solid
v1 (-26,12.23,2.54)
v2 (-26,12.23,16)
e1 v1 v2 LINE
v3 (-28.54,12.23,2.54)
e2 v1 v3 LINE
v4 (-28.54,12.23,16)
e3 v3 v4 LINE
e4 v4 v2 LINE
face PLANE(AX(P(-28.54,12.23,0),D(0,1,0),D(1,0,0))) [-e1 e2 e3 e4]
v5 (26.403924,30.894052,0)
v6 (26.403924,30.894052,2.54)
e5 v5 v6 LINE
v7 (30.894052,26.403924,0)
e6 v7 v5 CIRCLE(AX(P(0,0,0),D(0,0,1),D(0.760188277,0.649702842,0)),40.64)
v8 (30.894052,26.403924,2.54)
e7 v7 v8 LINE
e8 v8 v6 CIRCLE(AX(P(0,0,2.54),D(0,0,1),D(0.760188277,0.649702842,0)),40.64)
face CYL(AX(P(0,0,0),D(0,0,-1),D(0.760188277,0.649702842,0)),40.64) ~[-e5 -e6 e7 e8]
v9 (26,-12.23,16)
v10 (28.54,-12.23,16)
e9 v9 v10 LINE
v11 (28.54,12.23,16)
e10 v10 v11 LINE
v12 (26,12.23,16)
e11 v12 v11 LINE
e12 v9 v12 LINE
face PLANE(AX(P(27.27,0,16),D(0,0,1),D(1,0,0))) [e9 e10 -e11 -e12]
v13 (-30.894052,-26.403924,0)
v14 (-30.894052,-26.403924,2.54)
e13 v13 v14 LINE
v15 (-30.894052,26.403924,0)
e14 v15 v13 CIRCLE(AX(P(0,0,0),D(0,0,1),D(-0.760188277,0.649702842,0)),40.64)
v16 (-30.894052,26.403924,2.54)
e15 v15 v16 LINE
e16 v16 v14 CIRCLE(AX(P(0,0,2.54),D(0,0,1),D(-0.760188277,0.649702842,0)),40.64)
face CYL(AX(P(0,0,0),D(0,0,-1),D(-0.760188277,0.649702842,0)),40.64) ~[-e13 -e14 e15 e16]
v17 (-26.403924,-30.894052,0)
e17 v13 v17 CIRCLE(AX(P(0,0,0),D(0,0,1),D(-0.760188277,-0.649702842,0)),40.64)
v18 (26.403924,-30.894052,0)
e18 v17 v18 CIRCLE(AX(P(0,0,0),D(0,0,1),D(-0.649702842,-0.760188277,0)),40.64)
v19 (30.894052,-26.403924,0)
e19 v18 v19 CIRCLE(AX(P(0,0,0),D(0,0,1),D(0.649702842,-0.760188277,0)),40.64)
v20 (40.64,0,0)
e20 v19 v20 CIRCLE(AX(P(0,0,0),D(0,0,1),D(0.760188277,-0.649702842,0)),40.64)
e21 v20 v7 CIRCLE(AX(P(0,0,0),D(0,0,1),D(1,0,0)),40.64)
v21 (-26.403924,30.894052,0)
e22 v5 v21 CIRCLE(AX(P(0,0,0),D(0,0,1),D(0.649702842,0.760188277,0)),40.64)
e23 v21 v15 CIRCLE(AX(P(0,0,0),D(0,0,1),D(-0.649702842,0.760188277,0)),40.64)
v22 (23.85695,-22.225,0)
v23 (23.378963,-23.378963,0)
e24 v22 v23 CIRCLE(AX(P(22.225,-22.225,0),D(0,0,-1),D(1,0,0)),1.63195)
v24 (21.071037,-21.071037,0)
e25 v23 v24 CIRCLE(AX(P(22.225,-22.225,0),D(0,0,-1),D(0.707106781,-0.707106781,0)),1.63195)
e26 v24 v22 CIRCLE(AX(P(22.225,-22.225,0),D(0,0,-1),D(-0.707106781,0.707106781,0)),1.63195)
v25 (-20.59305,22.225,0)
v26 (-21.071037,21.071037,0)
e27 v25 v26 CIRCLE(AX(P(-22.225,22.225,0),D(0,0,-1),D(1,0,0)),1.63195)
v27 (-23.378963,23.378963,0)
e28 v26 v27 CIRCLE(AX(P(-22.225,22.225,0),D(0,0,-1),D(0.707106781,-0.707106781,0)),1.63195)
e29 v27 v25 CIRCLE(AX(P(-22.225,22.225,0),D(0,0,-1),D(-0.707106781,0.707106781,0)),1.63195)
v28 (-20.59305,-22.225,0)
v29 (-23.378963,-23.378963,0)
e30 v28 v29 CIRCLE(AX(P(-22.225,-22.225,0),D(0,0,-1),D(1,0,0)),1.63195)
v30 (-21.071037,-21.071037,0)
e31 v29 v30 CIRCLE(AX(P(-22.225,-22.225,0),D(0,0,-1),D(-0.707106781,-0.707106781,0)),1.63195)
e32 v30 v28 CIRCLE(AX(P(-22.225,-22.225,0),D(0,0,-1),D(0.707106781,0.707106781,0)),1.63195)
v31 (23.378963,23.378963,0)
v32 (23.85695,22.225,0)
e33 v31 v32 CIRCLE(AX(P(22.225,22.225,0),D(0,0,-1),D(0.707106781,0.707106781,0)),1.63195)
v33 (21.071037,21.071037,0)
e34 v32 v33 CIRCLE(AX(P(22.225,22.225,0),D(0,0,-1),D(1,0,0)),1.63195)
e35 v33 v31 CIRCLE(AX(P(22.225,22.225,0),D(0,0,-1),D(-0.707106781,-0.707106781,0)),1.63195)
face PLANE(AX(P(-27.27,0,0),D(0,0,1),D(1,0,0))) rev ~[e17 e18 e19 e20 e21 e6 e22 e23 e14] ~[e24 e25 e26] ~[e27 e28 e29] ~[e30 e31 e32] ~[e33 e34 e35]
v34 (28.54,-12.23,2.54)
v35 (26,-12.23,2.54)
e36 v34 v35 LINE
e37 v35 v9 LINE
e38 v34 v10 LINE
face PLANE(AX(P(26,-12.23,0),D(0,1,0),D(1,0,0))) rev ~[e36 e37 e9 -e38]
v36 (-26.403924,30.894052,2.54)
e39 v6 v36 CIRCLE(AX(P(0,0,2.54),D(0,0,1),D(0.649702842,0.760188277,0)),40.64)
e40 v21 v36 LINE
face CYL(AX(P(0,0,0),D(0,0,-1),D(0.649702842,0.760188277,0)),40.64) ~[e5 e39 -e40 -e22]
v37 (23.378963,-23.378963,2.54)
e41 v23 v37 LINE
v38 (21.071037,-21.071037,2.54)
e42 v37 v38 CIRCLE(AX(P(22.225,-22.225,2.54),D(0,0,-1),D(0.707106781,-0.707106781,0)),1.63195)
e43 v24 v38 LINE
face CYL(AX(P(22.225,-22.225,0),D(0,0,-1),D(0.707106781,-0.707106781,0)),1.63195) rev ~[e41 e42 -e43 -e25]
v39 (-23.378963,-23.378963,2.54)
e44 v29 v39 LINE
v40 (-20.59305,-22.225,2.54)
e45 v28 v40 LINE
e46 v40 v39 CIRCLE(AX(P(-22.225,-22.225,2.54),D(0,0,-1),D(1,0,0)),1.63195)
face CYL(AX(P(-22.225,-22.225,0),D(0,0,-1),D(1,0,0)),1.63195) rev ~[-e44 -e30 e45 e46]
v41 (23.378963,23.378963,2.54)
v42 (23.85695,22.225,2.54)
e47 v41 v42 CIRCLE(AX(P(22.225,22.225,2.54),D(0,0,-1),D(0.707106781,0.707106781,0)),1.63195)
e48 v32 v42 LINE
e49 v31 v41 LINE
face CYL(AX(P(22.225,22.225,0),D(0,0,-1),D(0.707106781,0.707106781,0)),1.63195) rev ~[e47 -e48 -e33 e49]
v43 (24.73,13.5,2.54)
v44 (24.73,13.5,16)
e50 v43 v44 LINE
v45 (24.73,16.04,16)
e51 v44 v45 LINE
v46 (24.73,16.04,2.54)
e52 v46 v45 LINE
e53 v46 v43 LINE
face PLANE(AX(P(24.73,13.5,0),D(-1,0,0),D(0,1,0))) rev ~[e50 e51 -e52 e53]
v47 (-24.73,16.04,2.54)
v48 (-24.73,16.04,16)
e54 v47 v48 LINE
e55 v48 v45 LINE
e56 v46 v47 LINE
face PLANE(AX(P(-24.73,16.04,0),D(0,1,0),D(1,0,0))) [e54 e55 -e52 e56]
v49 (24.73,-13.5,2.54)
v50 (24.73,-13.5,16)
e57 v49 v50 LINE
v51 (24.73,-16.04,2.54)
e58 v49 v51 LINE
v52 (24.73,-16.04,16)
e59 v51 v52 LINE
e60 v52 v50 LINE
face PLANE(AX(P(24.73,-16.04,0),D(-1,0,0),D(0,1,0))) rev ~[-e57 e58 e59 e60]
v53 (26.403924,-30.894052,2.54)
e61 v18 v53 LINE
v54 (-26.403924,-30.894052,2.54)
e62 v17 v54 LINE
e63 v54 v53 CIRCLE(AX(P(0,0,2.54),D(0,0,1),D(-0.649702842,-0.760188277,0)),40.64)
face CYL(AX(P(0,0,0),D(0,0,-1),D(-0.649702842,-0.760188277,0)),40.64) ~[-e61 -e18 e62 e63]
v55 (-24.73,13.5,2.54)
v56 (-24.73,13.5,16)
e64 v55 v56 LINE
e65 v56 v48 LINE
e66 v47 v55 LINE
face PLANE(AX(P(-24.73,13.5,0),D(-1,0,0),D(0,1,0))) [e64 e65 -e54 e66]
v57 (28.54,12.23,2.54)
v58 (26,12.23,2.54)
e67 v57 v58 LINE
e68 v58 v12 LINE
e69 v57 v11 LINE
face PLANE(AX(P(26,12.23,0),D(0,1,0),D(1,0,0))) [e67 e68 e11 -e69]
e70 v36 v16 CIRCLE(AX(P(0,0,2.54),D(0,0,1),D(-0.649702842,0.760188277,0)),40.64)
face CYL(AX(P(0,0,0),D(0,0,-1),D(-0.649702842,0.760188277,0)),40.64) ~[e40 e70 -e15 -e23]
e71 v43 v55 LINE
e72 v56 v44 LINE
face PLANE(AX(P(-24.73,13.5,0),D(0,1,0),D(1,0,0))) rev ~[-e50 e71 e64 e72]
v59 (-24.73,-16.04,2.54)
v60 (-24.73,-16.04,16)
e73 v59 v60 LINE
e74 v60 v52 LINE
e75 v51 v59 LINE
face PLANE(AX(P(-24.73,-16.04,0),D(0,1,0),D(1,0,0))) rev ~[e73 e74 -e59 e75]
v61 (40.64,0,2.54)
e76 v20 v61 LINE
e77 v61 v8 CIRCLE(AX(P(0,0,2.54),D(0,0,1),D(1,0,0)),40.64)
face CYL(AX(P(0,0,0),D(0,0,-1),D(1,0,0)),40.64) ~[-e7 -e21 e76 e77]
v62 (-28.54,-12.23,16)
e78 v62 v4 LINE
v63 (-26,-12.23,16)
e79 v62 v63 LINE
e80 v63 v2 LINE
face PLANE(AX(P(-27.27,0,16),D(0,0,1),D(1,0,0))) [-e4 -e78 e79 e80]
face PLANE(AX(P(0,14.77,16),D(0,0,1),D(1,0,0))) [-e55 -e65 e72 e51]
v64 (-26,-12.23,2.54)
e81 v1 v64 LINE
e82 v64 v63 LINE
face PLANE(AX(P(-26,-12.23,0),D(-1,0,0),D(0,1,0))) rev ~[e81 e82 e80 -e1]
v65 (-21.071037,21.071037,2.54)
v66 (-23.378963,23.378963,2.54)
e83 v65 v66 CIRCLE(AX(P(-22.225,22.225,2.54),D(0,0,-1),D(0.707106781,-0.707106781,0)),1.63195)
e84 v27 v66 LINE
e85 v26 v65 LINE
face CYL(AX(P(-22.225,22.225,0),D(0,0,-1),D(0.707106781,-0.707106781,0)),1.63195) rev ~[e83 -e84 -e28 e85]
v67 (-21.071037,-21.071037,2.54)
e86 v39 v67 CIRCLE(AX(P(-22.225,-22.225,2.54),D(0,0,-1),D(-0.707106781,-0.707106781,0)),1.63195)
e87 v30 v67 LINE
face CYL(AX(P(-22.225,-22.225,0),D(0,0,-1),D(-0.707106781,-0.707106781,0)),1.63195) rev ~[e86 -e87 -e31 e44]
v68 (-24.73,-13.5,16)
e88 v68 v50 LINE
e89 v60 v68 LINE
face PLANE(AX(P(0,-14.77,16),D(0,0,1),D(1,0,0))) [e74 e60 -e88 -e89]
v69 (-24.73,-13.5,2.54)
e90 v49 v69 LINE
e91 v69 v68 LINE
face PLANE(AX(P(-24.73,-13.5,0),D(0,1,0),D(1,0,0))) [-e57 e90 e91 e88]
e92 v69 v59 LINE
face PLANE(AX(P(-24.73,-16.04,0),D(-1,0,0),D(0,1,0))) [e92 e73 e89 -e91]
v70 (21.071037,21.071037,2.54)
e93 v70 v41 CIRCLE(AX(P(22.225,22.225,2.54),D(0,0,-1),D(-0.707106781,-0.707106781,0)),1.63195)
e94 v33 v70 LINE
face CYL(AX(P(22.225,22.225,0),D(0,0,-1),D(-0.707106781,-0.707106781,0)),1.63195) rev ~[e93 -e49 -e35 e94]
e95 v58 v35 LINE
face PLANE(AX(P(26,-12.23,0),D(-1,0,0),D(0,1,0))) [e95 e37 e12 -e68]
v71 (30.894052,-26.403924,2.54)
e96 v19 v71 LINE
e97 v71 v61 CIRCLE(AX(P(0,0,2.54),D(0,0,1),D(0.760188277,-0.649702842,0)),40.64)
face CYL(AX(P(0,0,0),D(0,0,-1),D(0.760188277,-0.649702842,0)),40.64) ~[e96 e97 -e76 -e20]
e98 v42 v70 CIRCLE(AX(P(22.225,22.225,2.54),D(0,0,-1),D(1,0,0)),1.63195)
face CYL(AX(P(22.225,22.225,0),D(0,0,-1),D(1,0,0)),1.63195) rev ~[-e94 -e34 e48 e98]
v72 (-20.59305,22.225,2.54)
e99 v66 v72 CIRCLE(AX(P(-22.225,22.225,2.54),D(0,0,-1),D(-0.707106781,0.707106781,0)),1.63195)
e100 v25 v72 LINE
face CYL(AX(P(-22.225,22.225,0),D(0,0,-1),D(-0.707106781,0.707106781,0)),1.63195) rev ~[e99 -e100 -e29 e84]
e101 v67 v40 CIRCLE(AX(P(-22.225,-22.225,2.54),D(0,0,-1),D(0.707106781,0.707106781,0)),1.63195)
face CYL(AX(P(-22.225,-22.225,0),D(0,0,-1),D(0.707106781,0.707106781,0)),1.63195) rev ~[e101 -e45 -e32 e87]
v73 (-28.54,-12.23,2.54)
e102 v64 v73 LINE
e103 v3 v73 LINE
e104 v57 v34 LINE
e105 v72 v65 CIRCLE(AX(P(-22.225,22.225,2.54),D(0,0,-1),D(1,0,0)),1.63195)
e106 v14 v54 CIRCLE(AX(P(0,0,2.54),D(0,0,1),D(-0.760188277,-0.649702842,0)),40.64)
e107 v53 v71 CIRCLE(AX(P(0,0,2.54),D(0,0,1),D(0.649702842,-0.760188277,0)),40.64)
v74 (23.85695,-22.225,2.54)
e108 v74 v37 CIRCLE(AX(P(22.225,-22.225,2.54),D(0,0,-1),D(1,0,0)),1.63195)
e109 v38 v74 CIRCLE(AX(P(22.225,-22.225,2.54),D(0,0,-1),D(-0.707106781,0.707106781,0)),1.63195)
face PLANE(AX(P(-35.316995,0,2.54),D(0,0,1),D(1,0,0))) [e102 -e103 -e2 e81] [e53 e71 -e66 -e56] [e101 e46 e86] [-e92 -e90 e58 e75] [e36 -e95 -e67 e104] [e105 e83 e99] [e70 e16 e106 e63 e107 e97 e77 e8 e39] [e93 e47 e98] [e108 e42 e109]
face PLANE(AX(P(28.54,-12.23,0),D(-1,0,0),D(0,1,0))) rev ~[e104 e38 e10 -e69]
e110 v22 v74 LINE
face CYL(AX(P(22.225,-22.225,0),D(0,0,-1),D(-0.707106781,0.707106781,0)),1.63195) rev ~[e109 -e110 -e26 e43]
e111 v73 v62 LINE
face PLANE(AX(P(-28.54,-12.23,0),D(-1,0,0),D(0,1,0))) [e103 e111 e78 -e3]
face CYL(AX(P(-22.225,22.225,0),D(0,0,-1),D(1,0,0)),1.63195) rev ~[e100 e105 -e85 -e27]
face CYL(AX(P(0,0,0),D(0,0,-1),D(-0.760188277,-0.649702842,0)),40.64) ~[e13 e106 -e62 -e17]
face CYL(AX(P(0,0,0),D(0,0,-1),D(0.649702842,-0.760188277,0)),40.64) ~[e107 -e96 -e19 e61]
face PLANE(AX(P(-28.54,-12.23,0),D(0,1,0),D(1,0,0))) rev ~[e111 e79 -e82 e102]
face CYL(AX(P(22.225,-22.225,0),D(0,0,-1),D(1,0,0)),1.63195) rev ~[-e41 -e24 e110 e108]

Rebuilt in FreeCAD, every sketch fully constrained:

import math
import FreeCAD as App
import Part
import Sketcher
from FreeCAD import Vector
Q = App.Units.Quantity

doc = App.newDocument("Part")
body = doc.addObject("PartDesign::Body", "Body")

# Sketch on XY plane
sketch1 = body.newObject("Sketcher::SketchObject", "Sketch")
sketch1.AttachmentSupport = (doc.getObject("XY_Plane"), [""])
sketch1.MapMode = "FlatFace"
sketch1.addGeometry([
    Part.ArcOfCircle(Part.Circle(Vector(0, 0, 0), Vector(0, 0, 1), 40.6), math.radians(-49.48), math.radians(-40.52)),  # 0
    Part.ArcOfCircle(Part.Circle(Vector(0, 0, 0), Vector(0, 0, 1), 40.6), math.radians(-41), math.radians(0)),  # 1
    Part.ArcOfCircle(Part.Circle(Vector(0, 0, 0), Vector(0, 0, 1), 40.6), math.radians(0), math.radians(41)),  # 2
    Part.ArcOfCircle(Part.Circle(Vector(0, 0, 0), Vector(0, 0, 1), 40.6), math.radians(40.52), math.radians(49.48)),  # 3
    Part.ArcOfCircle(Part.Circle(Vector(0, 0, 0), Vector(0, 0, 1), 40.6), math.radians(49), math.radians(131)),  # 4
    Part.ArcOfCircle(Part.Circle(Vector(0, 0, 0), Vector(0, 0, 1), 40.6), math.radians(130.52), math.radians(139.48)),  # 5
    Part.ArcOfCircle(Part.Circle(Vector(0, 0, 0), Vector(0, 0, 1), 40.6), math.radians(139), math.radians(221)),  # 6
    Part.ArcOfCircle(Part.Circle(Vector(0, 0, 0), Vector(0, 0, 1), 40.6), math.radians(-139.48), math.radians(-130.52)),  # 7
    Part.ArcOfCircle(Part.Circle(Vector(0, 0, 0), Vector(0, 0, 1), 40.6), math.radians(-131), math.radians(-49)),  # 8
    Part.ArcOfCircle(Part.Circle(Vector(22.2, -22.2, 0), Vector(0, 0, 1), 1.6), math.radians(135), math.radians(315)),  # 9
    Part.ArcOfCircle(Part.Circle(Vector(22.2, -22.2, 0), Vector(0, 0, 1), 1.6), math.radians(0), math.radians(135)),  # 10
    Part.ArcOfCircle(Part.Circle(Vector(22.2, -22.2, 0), Vector(0, 0, 1), 1.6), math.radians(-45), math.radians(0)),  # 11
    Part.ArcOfCircle(Part.Circle(Vector(-22.2, 22.2, 0), Vector(0, 0, 1), 1.6), math.radians(135), math.radians(315)),  # 12
    Part.ArcOfCircle(Part.Circle(Vector(-22.2, 22.2, 0), Vector(0, 0, 1), 1.6), math.radians(0), math.radians(135)),  # 13
    Part.ArcOfCircle(Part.Circle(Vector(-22.2, 22.2, 0), Vector(0, 0, 1), 1.6), math.radians(-45), math.radians(0)),  # 14
    Part.ArcOfCircle(Part.Circle(Vector(22.2, 22.2, 0), Vector(0, 0, 1), 1.6), math.radians(45), math.radians(225)),  # 15
    Part.ArcOfCircle(Part.Circle(Vector(22.2, 22.2, 0), Vector(0, 0, 1), 1.6), math.radians(0), math.radians(45)),  # 16
    Part.ArcOfCircle(Part.Circle(Vector(22.2, 22.2, 0), Vector(0, 0, 1), 1.6), math.radians(-135), math.radians(0)),  # 17
    Part.ArcOfCircle(Part.Circle(Vector(-22.2, -22.2, 0), Vector(0, 0, 1), 1.6), math.radians(0), math.radians(45)),  # 18
    Part.ArcOfCircle(Part.Circle(Vector(-22.2, -22.2, 0), Vector(0, 0, 1), 1.6), math.radians(-135), math.radians(0)),  # 19
    Part.ArcOfCircle(Part.Circle(Vector(-22.2, -22.2, 0), Vector(0, 0, 1), 1.6), math.radians(45), math.radians(225)),  # 20
], False)
sketch1.addConstraint([
    Sketcher.Constraint("Tangent", 0, 2, 1, 1),
    Sketcher.Constraint("Tangent", 1, 2, 2, 1),
    Sketcher.Constraint("Tangent", 2, 2, 3, 1),
    Sketcher.Constraint("Tangent", 3, 2, 4, 1),
    Sketcher.Constraint("Tangent", 4, 2, 5, 1),
    Sketcher.Constraint("Tangent", 5, 2, 6, 1),
    Sketcher.Constraint("Tangent", 6, 2, 7, 1),
    Sketcher.Constraint("Tangent", 7, 2, 8, 1),
    Sketcher.Constraint("Tangent", 8, 2, 0, 1),
    Sketcher.Constraint("Tangent", 9, 1, 10, 2),
    Sketcher.Constraint("Tangent", 10, 1, 11, 2),
    Sketcher.Constraint("Tangent", 11, 1, 9, 2),
    Sketcher.Constraint("Tangent", 12, 1, 13, 2),
    Sketcher.Constraint("Tangent", 13, 1, 14, 2),
    Sketcher.Constraint("Tangent", 14, 1, 12, 2),
    Sketcher.Constraint("Tangent", 15, 1, 16, 2),
    Sketcher.Constraint("Tangent", 16, 1, 17, 2),
    Sketcher.Constraint("Tangent", 17, 1, 15, 2),
    Sketcher.Constraint("Tangent", 18, 1, 19, 2),
    Sketcher.Constraint("Tangent", 19, 1, 20, 2),
    Sketcher.Constraint("Tangent", 20, 1, 18, 2),
    Sketcher.Constraint("Coincident", 0, 3, -1, 1),
    Sketcher.Constraint("Coincident", 2, 3, -1, 1),
    Sketcher.Constraint("Coincident", 4, 3, -1, 1),
    Sketcher.Constraint("Coincident", 6, 3, -1, 1),
    Sketcher.Constraint("Equal", 11, 12),
    Sketcher.Constraint("Equal", 14, 15),
    Sketcher.Constraint("Equal", 17, 18),
    Sketcher.Constraint("Symmetric", 9, 3, 12, 3, -1, 1),
    Sketcher.Constraint("Symmetric", 15, 3, 18, 3, -1, 1),
    Sketcher.Constraint("Symmetric", 12, 3, 15, 3, -2),
    Sketcher.Constraint("PointOnObject", 1, 2, -1),
    Sketcher.Constraint("Horizontal", 3, 2, 4, 2),
    Sketcher.Constraint("Horizontal", 2, 2, 5, 2),
    Sketcher.Constraint("Horizontal", 0, 2, 6, 2),
    Sketcher.Constraint("Horizontal", 7, 2, 8, 2),
    Sketcher.Constraint("Horizontal", 20, 3, 10, 1),
    Sketcher.Constraint("Horizontal", 17, 3, 13, 1),
    Sketcher.Constraint("Horizontal", 12, 1, 15, 1),
    Sketcher.Constraint("Horizontal", 13, 1, 16, 1),
    Sketcher.Constraint("Horizontal", 14, 1, 17, 1),
    Sketcher.Constraint("Horizontal", 10, 1, 18, 1),
    Sketcher.Constraint("Horizontal", 11, 1, 19, 1),
    Sketcher.Constraint("Horizontal", 9, 1, 20, 1),
    Sketcher.Constraint("Vertical", 0, 2, 2, 2),
    Sketcher.Constraint("Vertical", 4, 2, 7, 2),
    Sketcher.Constraint("Vertical", 11, 1, 15, 1),
    Sketcher.Constraint("Vertical", 9, 1, 17, 1),
    Sketcher.Constraint("Radius", 0, Q("1.6 in")),
    Sketcher.Constraint("DistanceX", -1, 1, 9, 3, Q("0.875 in")),
    Sketcher.Constraint("DistanceY", 9, 3, -1, 1, Q("0.875 in")),
    Sketcher.Constraint("Radius", 9, 1.63195),
    Sketcher.Constraint("DistanceX", 10, 1, 0, 2, 7.037102),
    Sketcher.Constraint("DistanceY", -1, 1, 3, 2, 30.894052),
    Sketcher.Constraint("DistanceX", 5, 2, 12, 1, 7.515089),
    Sketcher.Constraint("DistanceX", -1, 1, 9, 1, 21.071037),
])
pad1 = body.newObject("PartDesign::Pad", "Pad")
pad1.Profile = sketch1
pad1.Length = Q("0.1 in")

# Sketch on XY plane
sketch2 = body.newObject("Sketcher::SketchObject", "Sketch001")
sketch2.AttachmentSupport = (doc.getObject("XY_Plane"), [""])
sketch2.MapMode = "FlatFace"
sketch2.addGeometry([
    Part.LineSegment(Vector(-28.5, 12.2, 0), Vector(-28.5, -12.2, 0)),  # 0
    Part.LineSegment(Vector(-28.5, -12.2, 0), Vector(-26, -12.2, 0)),  # 1
    Part.LineSegment(Vector(-26, -12.2, 0), Vector(-26, 12.2, 0)),  # 2
    Part.LineSegment(Vector(-26, 12.2, 0), Vector(-28.5, 12.2, 0)),  # 3
    Part.LineSegment(Vector(-24.7, 16, 0), Vector(-24.7, 13.5, 0)),  # 4
    Part.LineSegment(Vector(-24.7, 13.5, 0), Vector(24.7, 13.5, 0)),  # 5
    Part.LineSegment(Vector(24.7, 13.5, 0), Vector(24.7, 16, 0)),  # 6
    Part.LineSegment(Vector(24.7, 16, 0), Vector(-24.7, 16, 0)),  # 7
    Part.LineSegment(Vector(26, 12.2, 0), Vector(26, -12.2, 0)),  # 8
    Part.LineSegment(Vector(26, -12.2, 0), Vector(28.5, -12.2, 0)),  # 9
    Part.LineSegment(Vector(28.5, -12.2, 0), Vector(28.5, 12.2, 0)),  # 10
    Part.LineSegment(Vector(28.5, 12.2, 0), Vector(26, 12.2, 0)),  # 11
    Part.LineSegment(Vector(-24.7, -13.5, 0), Vector(-24.7, -16, 0)),  # 12
    Part.LineSegment(Vector(-24.7, -16, 0), Vector(24.7, -16, 0)),  # 13
    Part.LineSegment(Vector(24.7, -16, 0), Vector(24.7, -13.5, 0)),  # 14
    Part.LineSegment(Vector(24.7, -13.5, 0), Vector(-24.7, -13.5, 0)),  # 15
], False)
sketch2.addConstraint([
    Sketcher.Constraint("Coincident", 0, 2, 1, 1),
    Sketcher.Constraint("Coincident", 1, 2, 2, 1),
    Sketcher.Constraint("Coincident", 2, 2, 3, 1),
    Sketcher.Constraint("Coincident", 3, 2, 0, 1),
    Sketcher.Constraint("Coincident", 4, 2, 5, 1),
    Sketcher.Constraint("Coincident", 5, 2, 6, 1),
    Sketcher.Constraint("Coincident", 6, 2, 7, 1),
    Sketcher.Constraint("Coincident", 7, 2, 4, 1),
    Sketcher.Constraint("Coincident", 8, 2, 9, 1),
    Sketcher.Constraint("Coincident", 9, 2, 10, 1),
    Sketcher.Constraint("Coincident", 10, 2, 11, 1),
    Sketcher.Constraint("Coincident", 11, 2, 8, 1),
    Sketcher.Constraint("Coincident", 12, 2, 13, 1),
    Sketcher.Constraint("Coincident", 13, 2, 14, 1),
    Sketcher.Constraint("Coincident", 14, 2, 15, 1),
    Sketcher.Constraint("Coincident", 15, 2, 12, 1),
    Sketcher.Constraint("Vertical", 0),
    Sketcher.Constraint("Horizontal", 1),
    Sketcher.Constraint("Vertical", 2),
    Sketcher.Constraint("Horizontal", 3),
    Sketcher.Constraint("Vertical", 4),
    Sketcher.Constraint("Horizontal", 5),
    Sketcher.Constraint("Vertical", 6),
    Sketcher.Constraint("Horizontal", 7),
    Sketcher.Constraint("Vertical", 8),
    Sketcher.Constraint("Horizontal", 9),
    Sketcher.Constraint("Vertical", 10),
    Sketcher.Constraint("Horizontal", 11),
    Sketcher.Constraint("Vertical", 12),
    Sketcher.Constraint("Horizontal", 13),
    Sketcher.Constraint("Vertical", 14),
    Sketcher.Constraint("Horizontal", 15),
    Sketcher.Constraint("Symmetric", 2, 2, 8, 2, -1, 1),
    Sketcher.Constraint("Symmetric", 0, 2, 10, 2, -1, 1),
    Sketcher.Constraint("Symmetric", 6, 2, 12, 2, -1, 1),
    Sketcher.Constraint("Symmetric", 4, 2, 14, 2, -1, 1),
    Sketcher.Constraint("Horizontal", 1, 2, 8, 2),
    Sketcher.Constraint("Vertical", 7, 2, 12, 2),
    Sketcher.Constraint("Equal", 11, 4),
    Sketcher.Constraint("DistanceX", 1, 1, 1, 2, Q("0.1 in")),
    Sketcher.Constraint("DistanceX", 2, 2, 4, 2, Q("0.05 in")),
    Sketcher.Constraint("DistanceY", 2, 2, 4, 2, Q("0.05 in")),
    Sketcher.Constraint("DistanceX", 5, 1, 5, 2, 49.46),
    Sketcher.Constraint("DistanceY", 0, 2, 0, 1, 24.46),
])
pad2 = body.newObject("PartDesign::Pad", "Pad001")
pad2.Profile = sketch2
pad2.Length = 16

doc.recompute()
